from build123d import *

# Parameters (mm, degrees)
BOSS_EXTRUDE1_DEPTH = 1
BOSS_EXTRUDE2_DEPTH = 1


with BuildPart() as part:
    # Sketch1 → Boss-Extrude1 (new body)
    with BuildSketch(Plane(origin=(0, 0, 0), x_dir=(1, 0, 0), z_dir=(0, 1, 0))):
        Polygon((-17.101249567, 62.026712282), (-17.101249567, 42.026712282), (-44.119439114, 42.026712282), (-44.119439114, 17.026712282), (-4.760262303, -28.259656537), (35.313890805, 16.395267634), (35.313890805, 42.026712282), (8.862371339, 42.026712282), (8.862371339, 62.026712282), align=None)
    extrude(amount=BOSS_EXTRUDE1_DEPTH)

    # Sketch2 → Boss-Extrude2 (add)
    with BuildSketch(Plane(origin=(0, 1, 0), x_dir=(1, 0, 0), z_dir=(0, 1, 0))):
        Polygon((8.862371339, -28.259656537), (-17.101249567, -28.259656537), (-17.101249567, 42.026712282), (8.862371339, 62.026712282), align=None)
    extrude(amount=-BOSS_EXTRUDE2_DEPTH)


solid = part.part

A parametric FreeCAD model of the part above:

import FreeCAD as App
import Part
import Sketcher
Q = App.Units.Quantity


def add_polygon(sketch, points):
    """Adds a closed chain of lines whose ends are joined by coincident constraints."""
    first, n = sketch.GeometryCount, len(points)
    for a, b in zip(points, points[1:] + points[:1]):
        sketch.addGeometry(Part.LineSegment(App.Vector(*a, 0), App.Vector(*b, 0)), False)
    for i in range(n):
        sketch.addConstraint(Sketcher.Constraint("Coincident", first + i, 2, first + (i + 1) % n, 1))

doc = App.newDocument("Part")
body = doc.addObject("PartDesign::Body", "Body")

# Sketch on XZ plane
sketch1 = body.newObject("Sketcher::SketchObject", "Sketch")
sketch1.AttachmentSupport = (doc.getObject("XZ_Plane"), [""])
sketch1.MapMode = "FlatFace"
add_polygon(sketch1, [(-17, -62), (-17, -42), (-44, -42), (-44, -17), (-5, 28), (35, -16), (35, -42), (9, -42), (9, -62)])  # lines 0-8
sketch1.addConstraint([
    Sketcher.Constraint("Vertical", 0),
    Sketcher.Constraint("Horizontal", 1),
    Sketcher.Constraint("Vertical", 2),
    Sketcher.Constraint("Vertical", 5),
    Sketcher.Constraint("Horizontal", 6),
    Sketcher.Constraint("Vertical", 7),
    Sketcher.Constraint("Horizontal", 8),
    Sketcher.Constraint("Horizontal", 1, 2, 5, 2),
    Sketcher.Constraint("Equal", 3, 4),
    Sketcher.Constraint("DistanceY", 0, 1, 0, 2, Q("20 mm")),
    Sketcher.Constraint("DistanceY", 2, 1, 2, 2, Q("25 mm")),
    Sketcher.Constraint("Distance", 3, Q("60 mm")),
    Sketcher.Constraint("DistanceX", 1, 2, 1, 1, Q("27.01819 mm")),
    Sketcher.Constraint("DistanceX", 6, 2, 6, 1, Q("26.451519 mm")),
    Sketcher.Constraint("DistanceX", 8, 2, 8, 1, Q("25.963621 mm")),
    Sketcher.Constraint("DistanceY", 5, 2, 5, 1, Q("25.631445 mm")),
    Sketcher.Constraint("DistanceX", 0, 2, -1, 1, Q("17.10125 mm")),
    Sketcher.Constraint("DistanceY", 0, 2, -1, 1, Q("42.026712 mm")),
])
pad1 = body.newObject("PartDesign::Pad", "Pad")
pad1.Profile = sketch1
pad1.Length = 1
pad1.Reversed = True

# Sketch on XZ plane
sketch2 = body.newObject("Sketcher::SketchObject", "Sketch001")
sketch2.AttachmentSupport = (doc.getObject("XZ_Plane"), [""])
sketch2.MapMode = "FlatFace"
sketch2.AttachmentOffset = App.Placement(App.Vector(0, 0, -1), App.Rotation())
add_polygon(sketch2, [(-17, 28), (9, 28), (9, -62), (-17, -42)])  # lines 0-3
sketch2.addConstraint([
    Sketcher.Constraint("Horizontal", 0),
    Sketcher.Constraint("Vertical", 1),
    Sketcher.Constraint("Vertical", 3),
    Sketcher.Constraint("DistanceY", 1, 2, 2, 2, Q("20 mm")),
    Sketcher.Constraint("DistanceX", 0, 1, 0, 2, Q("25.963621 mm")),
    Sketcher.Constraint("DistanceY", 1, 2, 1, 1, Q("90.286369 mm")),
    Sketcher.Constraint("DistanceX", -1, 1, 0, 2, Q("8.862371 mm")),
    Sketcher.Constraint("DistanceY", -1, 1, 0, 2, Q("28.259657 mm")),
])
pad2 = body.newObject("PartDesign::Pad", "Pad001")
pad2.Profile = sketch2
pad2.Length = 1

doc.recompute()
